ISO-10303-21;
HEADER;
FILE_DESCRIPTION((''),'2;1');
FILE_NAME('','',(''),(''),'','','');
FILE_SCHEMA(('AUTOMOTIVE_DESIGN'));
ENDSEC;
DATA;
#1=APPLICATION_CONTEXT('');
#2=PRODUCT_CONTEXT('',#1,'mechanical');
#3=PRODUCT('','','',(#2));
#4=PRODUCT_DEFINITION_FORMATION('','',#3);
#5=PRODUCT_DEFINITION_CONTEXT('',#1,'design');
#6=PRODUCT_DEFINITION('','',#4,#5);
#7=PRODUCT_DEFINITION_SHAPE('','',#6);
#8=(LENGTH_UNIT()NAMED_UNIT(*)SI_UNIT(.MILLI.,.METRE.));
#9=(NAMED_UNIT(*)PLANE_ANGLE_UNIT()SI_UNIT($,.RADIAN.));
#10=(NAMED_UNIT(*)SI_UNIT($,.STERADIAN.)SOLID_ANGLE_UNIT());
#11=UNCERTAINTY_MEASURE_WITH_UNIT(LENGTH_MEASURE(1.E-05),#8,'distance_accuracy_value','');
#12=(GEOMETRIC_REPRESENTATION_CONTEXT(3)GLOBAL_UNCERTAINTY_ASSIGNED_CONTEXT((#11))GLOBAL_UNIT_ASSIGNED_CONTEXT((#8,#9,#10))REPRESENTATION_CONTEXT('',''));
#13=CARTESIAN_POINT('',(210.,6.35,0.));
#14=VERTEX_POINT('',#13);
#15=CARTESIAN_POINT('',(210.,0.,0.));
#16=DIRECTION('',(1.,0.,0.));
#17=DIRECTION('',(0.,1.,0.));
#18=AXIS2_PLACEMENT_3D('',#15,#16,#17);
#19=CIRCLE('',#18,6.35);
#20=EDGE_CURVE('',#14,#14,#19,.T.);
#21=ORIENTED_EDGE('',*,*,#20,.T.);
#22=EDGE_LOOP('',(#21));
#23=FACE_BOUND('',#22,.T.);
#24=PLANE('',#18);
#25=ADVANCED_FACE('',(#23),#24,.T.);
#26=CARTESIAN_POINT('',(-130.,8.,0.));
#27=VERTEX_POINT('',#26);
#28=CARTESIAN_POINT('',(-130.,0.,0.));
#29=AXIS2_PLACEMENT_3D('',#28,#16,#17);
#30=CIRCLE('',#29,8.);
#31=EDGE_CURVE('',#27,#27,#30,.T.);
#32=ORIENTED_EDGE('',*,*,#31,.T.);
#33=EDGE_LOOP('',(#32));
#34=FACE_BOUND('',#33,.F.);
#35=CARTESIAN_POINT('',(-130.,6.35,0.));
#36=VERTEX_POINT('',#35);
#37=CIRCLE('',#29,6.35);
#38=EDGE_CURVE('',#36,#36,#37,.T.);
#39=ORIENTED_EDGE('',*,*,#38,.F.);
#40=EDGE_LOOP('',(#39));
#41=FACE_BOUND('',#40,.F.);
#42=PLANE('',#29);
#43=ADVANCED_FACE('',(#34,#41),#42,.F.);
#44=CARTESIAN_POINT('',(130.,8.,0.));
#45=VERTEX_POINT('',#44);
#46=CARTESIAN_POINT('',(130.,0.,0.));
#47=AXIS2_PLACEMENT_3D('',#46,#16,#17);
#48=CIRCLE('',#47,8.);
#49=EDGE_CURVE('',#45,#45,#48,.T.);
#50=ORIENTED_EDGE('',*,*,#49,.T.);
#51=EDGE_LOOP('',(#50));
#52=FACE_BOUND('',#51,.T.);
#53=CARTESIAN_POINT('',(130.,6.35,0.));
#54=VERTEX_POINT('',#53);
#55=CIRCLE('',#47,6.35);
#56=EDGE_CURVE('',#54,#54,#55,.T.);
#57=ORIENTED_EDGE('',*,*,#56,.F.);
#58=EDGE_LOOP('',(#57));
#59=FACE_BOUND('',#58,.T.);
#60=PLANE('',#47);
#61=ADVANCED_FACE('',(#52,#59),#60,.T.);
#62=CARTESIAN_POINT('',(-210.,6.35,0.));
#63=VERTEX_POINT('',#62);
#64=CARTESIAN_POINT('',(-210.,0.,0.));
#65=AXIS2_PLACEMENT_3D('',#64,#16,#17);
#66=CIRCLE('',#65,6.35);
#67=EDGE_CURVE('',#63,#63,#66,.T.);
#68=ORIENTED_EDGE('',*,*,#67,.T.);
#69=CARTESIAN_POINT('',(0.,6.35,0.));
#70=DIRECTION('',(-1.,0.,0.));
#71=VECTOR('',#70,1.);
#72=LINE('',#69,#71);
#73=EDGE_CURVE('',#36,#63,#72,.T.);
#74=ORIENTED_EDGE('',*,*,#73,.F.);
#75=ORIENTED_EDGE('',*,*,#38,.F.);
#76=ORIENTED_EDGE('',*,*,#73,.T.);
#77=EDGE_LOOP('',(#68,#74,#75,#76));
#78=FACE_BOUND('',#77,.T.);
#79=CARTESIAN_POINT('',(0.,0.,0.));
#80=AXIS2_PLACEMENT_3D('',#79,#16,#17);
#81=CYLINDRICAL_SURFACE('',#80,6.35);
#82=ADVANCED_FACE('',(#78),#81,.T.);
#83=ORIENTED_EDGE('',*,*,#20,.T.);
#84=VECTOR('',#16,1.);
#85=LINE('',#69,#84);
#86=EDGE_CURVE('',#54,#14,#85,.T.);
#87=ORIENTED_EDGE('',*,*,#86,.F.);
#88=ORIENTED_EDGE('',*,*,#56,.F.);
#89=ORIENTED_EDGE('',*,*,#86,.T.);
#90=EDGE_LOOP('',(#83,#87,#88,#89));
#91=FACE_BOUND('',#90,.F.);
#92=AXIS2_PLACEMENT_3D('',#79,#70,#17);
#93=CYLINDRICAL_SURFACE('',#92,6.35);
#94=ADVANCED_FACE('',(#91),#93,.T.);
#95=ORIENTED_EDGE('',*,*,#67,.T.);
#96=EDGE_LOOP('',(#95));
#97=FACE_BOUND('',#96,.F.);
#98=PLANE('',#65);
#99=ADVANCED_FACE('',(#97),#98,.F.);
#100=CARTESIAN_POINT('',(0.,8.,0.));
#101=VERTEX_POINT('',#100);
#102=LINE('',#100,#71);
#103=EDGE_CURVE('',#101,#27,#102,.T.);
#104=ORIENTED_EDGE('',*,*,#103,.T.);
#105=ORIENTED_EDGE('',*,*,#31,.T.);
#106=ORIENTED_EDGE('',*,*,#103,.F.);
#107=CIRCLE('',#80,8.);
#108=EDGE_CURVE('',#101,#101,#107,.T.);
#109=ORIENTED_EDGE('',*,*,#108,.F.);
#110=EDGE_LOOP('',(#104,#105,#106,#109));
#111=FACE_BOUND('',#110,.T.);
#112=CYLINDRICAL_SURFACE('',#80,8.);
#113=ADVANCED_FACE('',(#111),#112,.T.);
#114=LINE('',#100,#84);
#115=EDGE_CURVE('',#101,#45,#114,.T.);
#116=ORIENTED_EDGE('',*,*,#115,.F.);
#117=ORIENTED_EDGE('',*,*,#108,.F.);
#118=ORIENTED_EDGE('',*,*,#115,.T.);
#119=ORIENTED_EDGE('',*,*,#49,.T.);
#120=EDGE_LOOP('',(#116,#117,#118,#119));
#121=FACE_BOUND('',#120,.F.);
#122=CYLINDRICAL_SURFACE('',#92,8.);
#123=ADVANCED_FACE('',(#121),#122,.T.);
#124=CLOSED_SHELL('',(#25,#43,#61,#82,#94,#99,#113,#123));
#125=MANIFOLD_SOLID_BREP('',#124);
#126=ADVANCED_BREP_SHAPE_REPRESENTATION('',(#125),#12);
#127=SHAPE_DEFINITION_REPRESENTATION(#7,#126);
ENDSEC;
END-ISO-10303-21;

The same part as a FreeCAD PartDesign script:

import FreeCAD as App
import Part
import Sketcher
Q = App.Units.Quantity

doc = App.newDocument("Part")
body = doc.addObject("PartDesign::Body", "Body")

# Sketch on YZ plane
sketch1 = body.newObject("Sketcher::SketchObject", "Sketch")
sketch1.AttachmentSupport = (doc.getObject("YZ_Plane"), [""])
sketch1.MapMode = "FlatFace"
sketch1.addGeometry(Part.Circle(App.Vector(0, 0, 0), App.Vector(0, 0, 1), 6.35), False)
sketch1.addConstraint(Sketcher.Constraint("Coincident", 0, 3, -1, 1))
sketch1.addConstraint(Sketcher.Constraint("Diameter", 0, Q("12.7 mm")))
pad1 = body.newObject("PartDesign::Pad", "Pad")
pad1.Profile = sketch1
pad1.Length = 420
pad1.Midplane = True

# Sketch on YZ plane
sketch2 = body.newObject("Sketcher::SketchObject", "Sketch001")
sketch2.AttachmentSupport = (doc.getObject("YZ_Plane"), [""])
sketch2.MapMode = "FlatFace"
sketch2.addGeometry(Part.Circle(App.Vector(0, 0, 0), App.Vector(0, 0, 1), 8), False)
sketch2.addGeometry(Part.Circle(App.Vector(0, 0, 0), App.Vector(0, 0, 1), 6.35), False)
sketch2.addConstraint(Sketcher.Constraint("Coincident", 0, 3, -1, 1))
sketch2.addConstraint(Sketcher.Constraint("Coincident", 1, 3, -1, 1))
sketch2.addConstraint(Sketcher.Constraint("Diameter", 0, Q("16 mm")))
sketch2.addConstraint(Sketcher.Constraint("Diameter", 1, Q("12.7 mm")))
pad2 = body.newObject("PartDesign::Pad", "Pad001")
pad2.Profile = sketch2
pad2.Length = 260
pad2.Midplane = True

doc.recompute()
